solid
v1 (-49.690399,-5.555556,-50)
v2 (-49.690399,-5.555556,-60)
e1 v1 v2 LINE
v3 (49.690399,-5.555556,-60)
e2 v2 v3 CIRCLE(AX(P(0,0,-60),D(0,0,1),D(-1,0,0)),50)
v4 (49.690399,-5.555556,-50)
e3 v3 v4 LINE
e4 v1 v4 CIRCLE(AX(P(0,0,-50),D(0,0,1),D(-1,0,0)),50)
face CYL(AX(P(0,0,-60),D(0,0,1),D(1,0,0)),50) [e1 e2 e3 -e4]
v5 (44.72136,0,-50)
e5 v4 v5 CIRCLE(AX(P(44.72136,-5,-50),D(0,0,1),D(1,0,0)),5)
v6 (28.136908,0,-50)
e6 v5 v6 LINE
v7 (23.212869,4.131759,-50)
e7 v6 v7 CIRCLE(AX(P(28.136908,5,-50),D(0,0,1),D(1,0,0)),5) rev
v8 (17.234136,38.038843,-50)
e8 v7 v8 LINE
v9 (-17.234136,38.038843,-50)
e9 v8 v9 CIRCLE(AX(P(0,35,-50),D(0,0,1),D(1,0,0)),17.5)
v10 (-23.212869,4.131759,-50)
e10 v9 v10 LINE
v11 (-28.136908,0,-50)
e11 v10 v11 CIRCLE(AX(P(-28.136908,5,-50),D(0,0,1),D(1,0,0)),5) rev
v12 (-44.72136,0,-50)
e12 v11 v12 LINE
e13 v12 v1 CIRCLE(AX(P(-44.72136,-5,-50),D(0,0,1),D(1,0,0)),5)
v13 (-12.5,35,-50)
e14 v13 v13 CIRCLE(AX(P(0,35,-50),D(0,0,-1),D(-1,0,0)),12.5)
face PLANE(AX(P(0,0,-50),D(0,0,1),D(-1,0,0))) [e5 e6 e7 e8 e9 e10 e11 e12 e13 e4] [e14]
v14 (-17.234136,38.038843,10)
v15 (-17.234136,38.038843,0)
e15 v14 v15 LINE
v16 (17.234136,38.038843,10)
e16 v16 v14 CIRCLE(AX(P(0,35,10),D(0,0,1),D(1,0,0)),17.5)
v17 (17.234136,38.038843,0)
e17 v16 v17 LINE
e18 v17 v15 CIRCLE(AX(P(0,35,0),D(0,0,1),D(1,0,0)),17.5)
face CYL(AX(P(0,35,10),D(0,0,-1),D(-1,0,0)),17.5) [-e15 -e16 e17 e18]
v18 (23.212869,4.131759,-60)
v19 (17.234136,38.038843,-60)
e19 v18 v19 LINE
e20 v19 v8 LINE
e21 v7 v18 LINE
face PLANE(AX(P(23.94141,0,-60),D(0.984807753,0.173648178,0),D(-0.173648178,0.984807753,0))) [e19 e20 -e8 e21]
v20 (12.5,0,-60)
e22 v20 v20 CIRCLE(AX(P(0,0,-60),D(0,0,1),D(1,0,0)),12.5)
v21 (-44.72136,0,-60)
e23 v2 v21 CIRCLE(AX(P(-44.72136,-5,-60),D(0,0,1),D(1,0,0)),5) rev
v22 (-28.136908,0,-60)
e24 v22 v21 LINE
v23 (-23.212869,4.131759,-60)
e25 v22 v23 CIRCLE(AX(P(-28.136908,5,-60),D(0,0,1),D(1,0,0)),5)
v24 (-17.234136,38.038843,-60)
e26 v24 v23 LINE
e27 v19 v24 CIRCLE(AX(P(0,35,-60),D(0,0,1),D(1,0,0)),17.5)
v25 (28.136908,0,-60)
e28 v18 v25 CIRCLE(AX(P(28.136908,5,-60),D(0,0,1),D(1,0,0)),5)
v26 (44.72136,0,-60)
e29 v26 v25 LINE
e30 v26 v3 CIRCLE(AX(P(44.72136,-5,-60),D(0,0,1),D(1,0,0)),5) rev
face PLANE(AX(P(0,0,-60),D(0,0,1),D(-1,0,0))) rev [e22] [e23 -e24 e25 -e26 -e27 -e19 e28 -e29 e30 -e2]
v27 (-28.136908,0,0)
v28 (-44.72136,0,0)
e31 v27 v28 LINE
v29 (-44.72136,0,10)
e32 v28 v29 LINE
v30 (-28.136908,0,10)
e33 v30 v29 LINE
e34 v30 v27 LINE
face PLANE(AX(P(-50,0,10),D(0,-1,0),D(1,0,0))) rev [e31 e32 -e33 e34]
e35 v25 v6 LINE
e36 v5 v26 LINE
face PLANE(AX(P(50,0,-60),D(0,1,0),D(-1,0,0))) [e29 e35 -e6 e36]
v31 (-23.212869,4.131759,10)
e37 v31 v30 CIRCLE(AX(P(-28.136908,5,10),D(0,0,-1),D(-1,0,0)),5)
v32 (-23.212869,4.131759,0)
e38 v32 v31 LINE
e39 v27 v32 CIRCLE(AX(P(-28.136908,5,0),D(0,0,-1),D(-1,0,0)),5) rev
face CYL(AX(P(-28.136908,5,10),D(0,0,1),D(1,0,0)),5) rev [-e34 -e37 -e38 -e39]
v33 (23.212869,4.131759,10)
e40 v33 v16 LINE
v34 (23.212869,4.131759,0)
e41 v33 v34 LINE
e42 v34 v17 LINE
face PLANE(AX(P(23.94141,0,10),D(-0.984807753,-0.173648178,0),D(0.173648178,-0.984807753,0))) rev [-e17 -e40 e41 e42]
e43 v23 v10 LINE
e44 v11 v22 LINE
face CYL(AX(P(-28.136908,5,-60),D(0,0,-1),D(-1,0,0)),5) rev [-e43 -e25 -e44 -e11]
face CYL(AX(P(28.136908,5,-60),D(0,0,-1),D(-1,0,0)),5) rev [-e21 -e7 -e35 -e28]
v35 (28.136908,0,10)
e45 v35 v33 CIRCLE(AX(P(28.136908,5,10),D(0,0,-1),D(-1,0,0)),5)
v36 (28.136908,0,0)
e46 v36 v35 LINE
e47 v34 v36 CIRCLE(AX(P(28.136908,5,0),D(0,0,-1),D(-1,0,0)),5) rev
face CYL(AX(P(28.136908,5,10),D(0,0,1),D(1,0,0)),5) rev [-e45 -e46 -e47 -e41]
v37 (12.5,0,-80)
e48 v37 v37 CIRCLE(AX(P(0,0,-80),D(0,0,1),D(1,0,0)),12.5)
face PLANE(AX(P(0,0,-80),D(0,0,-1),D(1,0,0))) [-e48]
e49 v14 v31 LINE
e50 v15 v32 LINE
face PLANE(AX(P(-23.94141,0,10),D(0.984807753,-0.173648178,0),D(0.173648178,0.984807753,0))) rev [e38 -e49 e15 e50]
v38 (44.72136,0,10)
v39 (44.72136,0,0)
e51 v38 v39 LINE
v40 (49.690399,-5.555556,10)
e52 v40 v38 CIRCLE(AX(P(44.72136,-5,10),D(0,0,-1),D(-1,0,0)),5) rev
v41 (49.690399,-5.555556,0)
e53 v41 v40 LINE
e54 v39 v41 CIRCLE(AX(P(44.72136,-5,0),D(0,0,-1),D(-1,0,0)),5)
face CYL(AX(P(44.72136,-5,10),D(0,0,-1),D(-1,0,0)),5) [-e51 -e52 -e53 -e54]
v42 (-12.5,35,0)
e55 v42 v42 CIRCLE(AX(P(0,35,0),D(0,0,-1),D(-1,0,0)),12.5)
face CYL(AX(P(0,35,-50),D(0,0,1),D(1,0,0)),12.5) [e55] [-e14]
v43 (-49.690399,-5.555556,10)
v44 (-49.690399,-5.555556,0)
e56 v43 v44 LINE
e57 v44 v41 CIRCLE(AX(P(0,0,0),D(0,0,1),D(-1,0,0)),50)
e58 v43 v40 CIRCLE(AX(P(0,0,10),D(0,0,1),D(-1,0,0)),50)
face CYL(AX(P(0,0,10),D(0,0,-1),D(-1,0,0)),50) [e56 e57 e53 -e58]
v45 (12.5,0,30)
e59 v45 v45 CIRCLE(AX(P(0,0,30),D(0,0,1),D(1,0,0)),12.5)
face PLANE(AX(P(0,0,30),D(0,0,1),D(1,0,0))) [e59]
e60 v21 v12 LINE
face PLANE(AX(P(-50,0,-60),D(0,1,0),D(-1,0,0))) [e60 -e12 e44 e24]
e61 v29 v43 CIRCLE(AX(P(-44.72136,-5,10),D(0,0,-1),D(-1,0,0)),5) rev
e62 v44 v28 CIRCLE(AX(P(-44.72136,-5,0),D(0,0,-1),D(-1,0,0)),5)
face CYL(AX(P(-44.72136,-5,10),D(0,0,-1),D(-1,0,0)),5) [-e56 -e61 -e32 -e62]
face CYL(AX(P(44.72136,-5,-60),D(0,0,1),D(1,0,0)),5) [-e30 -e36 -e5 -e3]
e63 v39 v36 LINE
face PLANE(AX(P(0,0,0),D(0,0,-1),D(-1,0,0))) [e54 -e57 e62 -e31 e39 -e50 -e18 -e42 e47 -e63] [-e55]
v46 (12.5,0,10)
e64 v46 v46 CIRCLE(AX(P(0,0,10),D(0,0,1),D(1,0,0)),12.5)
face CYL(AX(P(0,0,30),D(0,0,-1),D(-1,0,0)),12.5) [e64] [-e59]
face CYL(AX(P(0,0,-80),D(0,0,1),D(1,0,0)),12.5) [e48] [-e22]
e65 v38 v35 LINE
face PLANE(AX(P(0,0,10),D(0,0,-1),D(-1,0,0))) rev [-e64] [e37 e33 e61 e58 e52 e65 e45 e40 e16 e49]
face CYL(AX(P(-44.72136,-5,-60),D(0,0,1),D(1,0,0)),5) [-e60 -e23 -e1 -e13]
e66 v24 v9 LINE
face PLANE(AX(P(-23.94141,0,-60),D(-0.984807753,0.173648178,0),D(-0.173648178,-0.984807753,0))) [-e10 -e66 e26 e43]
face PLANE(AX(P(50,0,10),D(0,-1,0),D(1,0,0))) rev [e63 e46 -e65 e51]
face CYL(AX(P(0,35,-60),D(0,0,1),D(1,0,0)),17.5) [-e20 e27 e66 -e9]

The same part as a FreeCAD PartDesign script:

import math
import FreeCAD as App
import Part
import Sketcher
from FreeCAD import Vector
Q = App.Units.Quantity


def edges_at(feature, points):
    """Names of the edges that pass closest to the given points."""
    edges = feature.Shape.Edges
    near = lambda p: min(range(len(edges)), key=lambda i: edges[i].distToShape(Part.Vertex(*p))[0])
    return sorted({f"Edge{near(p) + 1}" for p in points})

doc = App.newDocument("Part")
body = doc.addObject("PartDesign::Body", "Body")

# Sketch on XY plane
sketch1 = body.newObject("Sketcher::SketchObject", "Sketch")
sketch1.AttachmentSupport = (doc.getObject("XY_Plane"), [""])
sketch1.MapMode = "FlatFace"
sketch1.addGeometry([
    Part.LineSegment(Vector(-24, 0, 0), Vector(-50, 0, 0)),  # 0
    Part.ArcOfCircle(Part.Circle(Vector(0, 0, 0), Vector(0, 0, 1), 50), math.radians(180), math.radians(360)),  # 1
    Part.LineSegment(Vector(50, 0, 0), Vector(24, 0, 0)),  # 2
    Part.LineSegment(Vector(24, 0, 0), Vector(17, 38, 0)),  # 3
    Part.ArcOfCircle(Part.Circle(Vector(0, 35, 0), Vector(0, 0, 1), 18), math.radians(10), math.radians(170)),  # 4
    Part.LineSegment(Vector(-17, 38, 0), Vector(-24, 0, 0)),  # 5
    Part.Circle(Vector(0, 0, 0), Vector(0, 0, 1), 12),  # 6
], False)
sketch1.addConstraint([
    Sketcher.Constraint("Coincident", 0, 2, 1, 1),
    Sketcher.Constraint("Coincident", 1, 2, 2, 1),
    Sketcher.Constraint("Coincident", 2, 2, 3, 1),
    Sketcher.Constraint("Tangent", 3, 2, 4, 1),
    Sketcher.Constraint("Tangent", 4, 2, 5, 1),
    Sketcher.Constraint("Coincident", 5, 2, 0, 1),
    Sketcher.Constraint("Horizontal", 0),
    Sketcher.Constraint("Horizontal", 2),
    Sketcher.Constraint("Coincident", 1, 3, -1, 1),
    Sketcher.Constraint("Coincident", 6, 3, -1, 1),
    Sketcher.Constraint("Symmetric", 2, 2, 5, 2, -1, 1),
    Sketcher.Constraint("Symmetric", 3, 2, 4, 2, -2),
    Sketcher.Constraint("Diameter", 6, Q("25 mm")),
    Sketcher.Constraint("Radius", 1, Q("50 mm")),
    Sketcher.Constraint("Radius", 4, Q("17.5 mm")),
    Sketcher.Constraint("Angle", 3, Q("100 deg")),
    Sketcher.Constraint("DistanceY", -1, 1, 4, 3, Q("35 mm")),
])
pad1 = body.newObject("PartDesign::Pad", "Pad")
pad1.Profile = sketch1
pad1.Length = 10
doc.recompute()

fillet = body.newObject("PartDesign::Fillet", "Fillet")
fillet.Base = (pad1, edges_at(pad1, [
    (-50, 0, 5),
    (-23.941, 0, 5),
    (23.941, 0, 5),
    (50, 0, 5),
]))
fillet.Radius = 5

# Sketch on XY plane
sketch2 = body.newObject("Sketcher::SketchObject", "Sketch001")
sketch2.AttachmentSupport = (doc.getObject("XY_Plane"), [""])
sketch2.MapMode = "FlatFace"
sketch2.addGeometry(Part.Circle(Vector(0, 0, 0), Vector(0, 0, 1), 12), False)
sketch2.addConstraint([
    Sketcher.Constraint("Coincident", 0, 3, -1, 1),
    Sketcher.Constraint("Diameter", 0, Q("25 mm")),
])
pad2 = body.newObject("PartDesign::Pad", "Pad001")
pad2.Profile = sketch2
pad2.Length = 30

# Sketch on XY plane
sketch3 = body.newObject("Sketcher::SketchObject", "Sketch002")
sketch3.AttachmentSupport = (doc.getObject("XY_Plane"), [""])
sketch3.MapMode = "FlatFace"
sketch3.addGeometry(Part.Circle(Vector(0, 35, 0), Vector(0, 0, 1), 12), False)
sketch3.addConstraint([
    Sketcher.Constraint("PointOnObject", 0, 3, -2),
    Sketcher.Constraint("Diameter", 0, Q("25 mm")),
    Sketcher.Constraint("DistanceY", -1, 1, 0, 3, Q("35 mm")),
])
pad3 = body.newObject("PartDesign::Pad", "Pad002")
pad3.Profile = sketch3
pad3.Length = 50
pad3.Reversed = True
doc.recompute()

datumplane = body.newObject("PartDesign::Plane", "DatumPlane")
datumplane.AttachmentSupport = (doc.getObject("XY_Plane"), [""])
datumplane.MapMode = "FlatFace"
datumplane.AttachmentOffset = App.Placement(Vector(0, 0, -25), App.Rotation())
mirrored = body.newObject("PartDesign::Mirrored", "Mirrored")
mirrored.Originals = [pad1, pad2]
mirrored.MirrorPlane = (datumplane, [""])
body.Tip = mirrored
doc.recompute()

fillet2 = body.newObject("PartDesign::Fillet", "Fillet001")
fillet2.Base = (mirrored, edges_at(mirrored, [
    (-50, 0, -55),
    (-23.941, 0, -55),
    (23.941, 0, -55),
    (50, 0, -55),
]))
fillet2.Radius = 5

doc.recompute()
